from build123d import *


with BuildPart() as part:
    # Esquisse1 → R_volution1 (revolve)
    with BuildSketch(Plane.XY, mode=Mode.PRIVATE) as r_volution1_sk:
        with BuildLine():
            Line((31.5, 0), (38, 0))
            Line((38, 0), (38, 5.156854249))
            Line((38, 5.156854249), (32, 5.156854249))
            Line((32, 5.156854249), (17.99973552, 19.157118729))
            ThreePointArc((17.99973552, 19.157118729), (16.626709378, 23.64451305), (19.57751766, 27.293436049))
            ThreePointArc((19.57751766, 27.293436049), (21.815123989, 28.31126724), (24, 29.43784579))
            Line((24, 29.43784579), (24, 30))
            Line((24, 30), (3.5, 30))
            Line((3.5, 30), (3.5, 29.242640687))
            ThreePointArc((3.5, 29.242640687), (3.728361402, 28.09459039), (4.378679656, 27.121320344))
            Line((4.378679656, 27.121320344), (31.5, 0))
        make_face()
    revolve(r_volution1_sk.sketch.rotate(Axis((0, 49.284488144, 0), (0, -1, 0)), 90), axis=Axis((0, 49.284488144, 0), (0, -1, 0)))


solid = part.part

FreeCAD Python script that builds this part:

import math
import FreeCAD as App
import Part
import Sketcher
from FreeCAD import Vector
Q = App.Units.Quantity

doc = App.newDocument("Part")
body = doc.addObject("PartDesign::Body", "Body")

sketch1 = doc.addObject("Sketcher::SketchObject", "Sketch")
body.addObject(sketch1)
sketch1.AttachmentSupport = (doc.XY_Plane, [""])
sketch1.MapMode = "FlatFace"
sketch1.addGeometry([
    Part.LineSegment(Vector(31.5, 0, 0), Vector(38, 0, 0)),
    Part.LineSegment(Vector(38, 0, 0), Vector(38, 5.2, 0)),
    Part.LineSegment(Vector(38, 5.2, 0), Vector(32, 5.2, 0)),
    Part.LineSegment(Vector(32, 5.2, 0), Vector(18, 19.2, 0)),
    Part.ArcOfCircle(Part.Circle(Vector(21.5, 22.7, 0), Vector(0, 0, 1), 5), math.radians(113), math.radians(225)),
    Part.ArcOfCircle(Part.Circle(Vector(0, 73.3, 0), Vector(0, 0, 1), 50), math.radians(-66.95), math.radians(-61.31)),
    Part.LineSegment(Vector(24, 29.4, 0), Vector(24, 30, 0)),
    Part.LineSegment(Vector(24, 30, 0), Vector(3.5, 30, 0)),
    Part.LineSegment(Vector(3.5, 30, 0), Vector(3.5, 29.2, 0)),
    Part.ArcOfCircle(Part.Circle(Vector(6.5, 29.2, 0), Vector(0, 0, 1), 3), math.radians(180), math.radians(225)),
    Part.LineSegment(Vector(4.4, 27.1, 0), Vector(31.5, 0, 0)),
], False)
sketch1.addConstraint([
    Sketcher.Constraint("Coincident", 0, 2, 1, 1),
    Sketcher.Constraint("Coincident", 1, 2, 2, 1),
    Sketcher.Constraint("Coincident", 2, 2, 3, 1),
    Sketcher.Constraint("Tangent", 3, 2, 4, 2),
    Sketcher.Constraint("Tangent", 4, 1, 5, 1),
    Sketcher.Constraint("Coincident", 5, 2, 6, 1),
    Sketcher.Constraint("Coincident", 6, 2, 7, 1),
    Sketcher.Constraint("Coincident", 7, 2, 8, 1),
    Sketcher.Constraint("Tangent", 8, 2, 9, 1),
    Sketcher.Constraint("Tangent", 9, 2, 10, 1),
    Sketcher.Constraint("Coincident", 10, 2, 0, 1),
    Sketcher.Constraint("Horizontal", 0),
    Sketcher.Constraint("Vertical", 1),
    Sketcher.Constraint("Horizontal", 2),
    Sketcher.Constraint("Vertical", 6),
    Sketcher.Constraint("Horizontal", 7),
    Sketcher.Constraint("Vertical", 8),
    Sketcher.Constraint("PointOnObject", 5, 3, -2),
    Sketcher.Constraint("PointOnObject", 0, 2, -1),
    Sketcher.Constraint("Parallel", 3, 10),
    Sketcher.Constraint("Radius", 4, 5.0),
    Sketcher.Constraint("Radius", 5, 50.0),
    Sketcher.Constraint("Radius", 9, 3.0),
    Sketcher.Constraint("DistanceX", 2, 2, 2, 1, 6.0),
    Sketcher.Constraint("Angle", 3, Q("135 deg")),
    Sketcher.Constraint("DistanceX", 0, 1, 0, 2, 6.5),
    Sketcher.Constraint("DistanceX", 7, 2, 7, 1, 20.5),
    Sketcher.Constraint("DistanceX", -1, 1, 0, 2, 38.0),
    Sketcher.Constraint("DistanceX", -1, 1, 5, 2, 24.0),
    Sketcher.Constraint("DistanceY", -1, 1, 6, 2, 30.0),
    Sketcher.Constraint("DistanceY", 1, 2, 4, 3, 17.535798),
    Sketcher.Constraint("DistanceY", 3, 2, 9, 2, 7.964202),
])
revolution = doc.addObject("PartDesign::Revolution", "Revolution")
body.addObject(revolution)
revolution.Profile = sketch1
revolution.ReferenceAxis = (sketch1, ["V_Axis"])
revolution.Angle = 360

doc.recompute()
